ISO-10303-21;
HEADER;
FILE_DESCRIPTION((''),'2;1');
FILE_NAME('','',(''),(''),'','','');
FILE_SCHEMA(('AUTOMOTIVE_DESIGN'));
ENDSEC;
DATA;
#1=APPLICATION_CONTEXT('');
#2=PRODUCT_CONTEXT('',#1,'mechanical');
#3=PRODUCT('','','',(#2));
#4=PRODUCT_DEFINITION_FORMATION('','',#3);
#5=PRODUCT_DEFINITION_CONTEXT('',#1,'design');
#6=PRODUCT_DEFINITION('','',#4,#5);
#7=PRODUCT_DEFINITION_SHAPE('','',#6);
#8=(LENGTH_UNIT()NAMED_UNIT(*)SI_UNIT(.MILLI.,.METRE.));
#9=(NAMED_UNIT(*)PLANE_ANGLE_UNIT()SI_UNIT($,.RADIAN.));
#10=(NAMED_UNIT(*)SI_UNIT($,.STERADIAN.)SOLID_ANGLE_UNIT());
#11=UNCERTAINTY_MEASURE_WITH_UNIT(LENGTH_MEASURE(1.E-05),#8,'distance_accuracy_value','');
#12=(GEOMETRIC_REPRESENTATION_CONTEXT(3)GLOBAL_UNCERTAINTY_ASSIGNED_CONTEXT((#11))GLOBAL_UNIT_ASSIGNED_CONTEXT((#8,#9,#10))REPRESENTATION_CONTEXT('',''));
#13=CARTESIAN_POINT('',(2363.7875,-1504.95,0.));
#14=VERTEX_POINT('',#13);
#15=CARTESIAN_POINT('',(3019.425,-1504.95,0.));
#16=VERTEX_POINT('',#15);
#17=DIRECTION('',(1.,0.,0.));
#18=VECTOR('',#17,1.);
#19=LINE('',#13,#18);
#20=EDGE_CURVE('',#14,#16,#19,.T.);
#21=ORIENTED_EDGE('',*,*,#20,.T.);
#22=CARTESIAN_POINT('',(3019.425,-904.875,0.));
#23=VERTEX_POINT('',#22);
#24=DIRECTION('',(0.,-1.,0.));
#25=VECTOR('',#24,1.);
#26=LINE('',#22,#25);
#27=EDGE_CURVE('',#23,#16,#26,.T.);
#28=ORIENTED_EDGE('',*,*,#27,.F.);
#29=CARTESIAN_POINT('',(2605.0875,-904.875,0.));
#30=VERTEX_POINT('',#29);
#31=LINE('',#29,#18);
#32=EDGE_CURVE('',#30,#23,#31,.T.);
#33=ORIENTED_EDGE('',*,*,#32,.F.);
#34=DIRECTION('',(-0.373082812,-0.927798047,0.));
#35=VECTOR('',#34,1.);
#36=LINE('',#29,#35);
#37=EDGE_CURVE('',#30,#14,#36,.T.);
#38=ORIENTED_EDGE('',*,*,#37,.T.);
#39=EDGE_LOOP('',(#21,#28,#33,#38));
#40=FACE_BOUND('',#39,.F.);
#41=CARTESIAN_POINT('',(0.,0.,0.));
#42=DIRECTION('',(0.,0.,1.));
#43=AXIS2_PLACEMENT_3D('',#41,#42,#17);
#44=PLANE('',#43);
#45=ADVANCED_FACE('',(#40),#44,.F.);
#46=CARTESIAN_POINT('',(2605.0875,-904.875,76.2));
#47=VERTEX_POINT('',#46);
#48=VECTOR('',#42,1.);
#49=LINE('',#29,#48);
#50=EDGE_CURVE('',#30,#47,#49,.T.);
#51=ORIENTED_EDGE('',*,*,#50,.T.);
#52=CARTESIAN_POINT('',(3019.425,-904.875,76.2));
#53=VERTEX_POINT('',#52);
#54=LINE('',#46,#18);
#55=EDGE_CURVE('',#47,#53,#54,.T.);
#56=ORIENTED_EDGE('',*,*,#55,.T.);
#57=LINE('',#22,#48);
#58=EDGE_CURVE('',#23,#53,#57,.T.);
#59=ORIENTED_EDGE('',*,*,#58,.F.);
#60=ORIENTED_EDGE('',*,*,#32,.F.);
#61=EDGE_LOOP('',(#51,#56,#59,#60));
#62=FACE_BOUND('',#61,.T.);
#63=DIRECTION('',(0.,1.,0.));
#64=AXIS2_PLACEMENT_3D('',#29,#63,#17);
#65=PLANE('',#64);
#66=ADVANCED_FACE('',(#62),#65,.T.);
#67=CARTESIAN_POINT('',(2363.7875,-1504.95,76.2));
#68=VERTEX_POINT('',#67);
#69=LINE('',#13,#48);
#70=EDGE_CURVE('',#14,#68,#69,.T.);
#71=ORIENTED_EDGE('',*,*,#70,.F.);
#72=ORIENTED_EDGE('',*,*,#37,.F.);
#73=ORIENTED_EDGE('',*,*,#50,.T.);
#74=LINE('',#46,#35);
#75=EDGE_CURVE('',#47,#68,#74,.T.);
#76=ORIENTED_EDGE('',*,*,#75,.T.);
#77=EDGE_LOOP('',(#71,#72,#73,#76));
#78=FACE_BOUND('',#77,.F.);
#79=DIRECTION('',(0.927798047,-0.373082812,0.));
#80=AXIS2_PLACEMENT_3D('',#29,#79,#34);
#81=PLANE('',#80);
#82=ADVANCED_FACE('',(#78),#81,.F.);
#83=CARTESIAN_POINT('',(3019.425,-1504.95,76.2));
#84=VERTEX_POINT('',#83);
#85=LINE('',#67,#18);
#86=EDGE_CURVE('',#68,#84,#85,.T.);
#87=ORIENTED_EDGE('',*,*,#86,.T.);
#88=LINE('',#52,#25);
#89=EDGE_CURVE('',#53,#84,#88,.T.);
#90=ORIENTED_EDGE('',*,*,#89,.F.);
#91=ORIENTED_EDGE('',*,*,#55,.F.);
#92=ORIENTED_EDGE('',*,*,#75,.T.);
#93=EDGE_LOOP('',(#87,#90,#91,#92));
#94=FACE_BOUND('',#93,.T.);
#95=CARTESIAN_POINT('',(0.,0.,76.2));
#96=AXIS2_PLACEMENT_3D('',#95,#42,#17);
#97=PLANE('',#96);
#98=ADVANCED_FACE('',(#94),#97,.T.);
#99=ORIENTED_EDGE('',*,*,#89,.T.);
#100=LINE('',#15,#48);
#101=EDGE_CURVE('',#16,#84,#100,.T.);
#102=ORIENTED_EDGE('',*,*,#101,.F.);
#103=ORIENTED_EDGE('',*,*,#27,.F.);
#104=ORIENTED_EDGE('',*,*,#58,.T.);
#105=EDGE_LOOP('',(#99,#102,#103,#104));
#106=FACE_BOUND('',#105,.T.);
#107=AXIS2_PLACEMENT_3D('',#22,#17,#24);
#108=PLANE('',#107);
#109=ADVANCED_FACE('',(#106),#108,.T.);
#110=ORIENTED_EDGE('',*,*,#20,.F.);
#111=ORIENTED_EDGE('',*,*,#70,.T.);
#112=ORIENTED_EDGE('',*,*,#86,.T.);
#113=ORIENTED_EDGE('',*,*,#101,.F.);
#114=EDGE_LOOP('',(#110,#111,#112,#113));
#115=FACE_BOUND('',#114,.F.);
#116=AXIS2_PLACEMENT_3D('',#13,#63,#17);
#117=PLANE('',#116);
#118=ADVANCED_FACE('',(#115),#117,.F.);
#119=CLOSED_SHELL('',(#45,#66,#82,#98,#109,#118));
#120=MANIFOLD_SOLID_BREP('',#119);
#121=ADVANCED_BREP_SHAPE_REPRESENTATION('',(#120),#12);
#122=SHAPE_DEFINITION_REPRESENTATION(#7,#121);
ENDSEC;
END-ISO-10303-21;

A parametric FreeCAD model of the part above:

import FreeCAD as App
import Part
import Sketcher
from FreeCAD import Vector
Q = App.Units.Quantity

doc = App.newDocument("Part")
body = doc.addObject("PartDesign::Body", "Body")

sketch1 = body.newObject("Sketcher::SketchObject", "Sketch")
sketch1.AttachmentSupport = (doc.getObject("XY_Plane"), [""])
sketch1.MapMode = "FlatFace"
sketch1.addGeometry(Part.LineSegment(Vector(2605, -905, 0), Vector(2364, -1505, 0)), False)
sketch1.addGeometry(Part.LineSegment(Vector(2364, -1505, 0), Vector(3019, -1505, 0)), False)
sketch1.addGeometry(Part.LineSegment(Vector(3019, -1505, 0), Vector(3019, -905, 0)), False)
sketch1.addGeometry(Part.LineSegment(Vector(3019, -905, 0), Vector(2605, -905, 0)), False)
sketch1.addConstraint(Sketcher.Constraint("Coincident", 0, 2, 1, 1))
sketch1.addConstraint(Sketcher.Constraint("Coincident", 1, 2, 2, 1))
sketch1.addConstraint(Sketcher.Constraint("Coincident", 2, 2, 3, 1))
sketch1.addConstraint(Sketcher.Constraint("Coincident", 3, 2, 0, 1))
sketch1.addConstraint(Sketcher.Constraint("Horizontal", 1))
sketch1.addConstraint(Sketcher.Constraint("Vertical", 2))
sketch1.addConstraint(Sketcher.Constraint("Horizontal", 3))
sketch1.addConstraint(Sketcher.Constraint("DistanceX", 1, 1, 1, 2, Q("25.8125 in")))
sketch1.addConstraint(Sketcher.Constraint("DistanceX", 3, 2, 3, 1, Q("16.3125 in")))
sketch1.addConstraint(Sketcher.Constraint("DistanceY", 2, 1, 2, 2, Q("23.625 in")))
sketch1.addConstraint(Sketcher.Constraint("DistanceY", 0, 2, -1, 1, Q("59.25 in")))
sketch1.addConstraint(Sketcher.Constraint("DistanceX", -1, 1, 0, 2, Q("93.0625 in")))
pad1 = body.newObject("PartDesign::Pad", "Pad")
pad1.Profile = sketch1
pad1.Length = Q("3 in")

doc.recompute()
